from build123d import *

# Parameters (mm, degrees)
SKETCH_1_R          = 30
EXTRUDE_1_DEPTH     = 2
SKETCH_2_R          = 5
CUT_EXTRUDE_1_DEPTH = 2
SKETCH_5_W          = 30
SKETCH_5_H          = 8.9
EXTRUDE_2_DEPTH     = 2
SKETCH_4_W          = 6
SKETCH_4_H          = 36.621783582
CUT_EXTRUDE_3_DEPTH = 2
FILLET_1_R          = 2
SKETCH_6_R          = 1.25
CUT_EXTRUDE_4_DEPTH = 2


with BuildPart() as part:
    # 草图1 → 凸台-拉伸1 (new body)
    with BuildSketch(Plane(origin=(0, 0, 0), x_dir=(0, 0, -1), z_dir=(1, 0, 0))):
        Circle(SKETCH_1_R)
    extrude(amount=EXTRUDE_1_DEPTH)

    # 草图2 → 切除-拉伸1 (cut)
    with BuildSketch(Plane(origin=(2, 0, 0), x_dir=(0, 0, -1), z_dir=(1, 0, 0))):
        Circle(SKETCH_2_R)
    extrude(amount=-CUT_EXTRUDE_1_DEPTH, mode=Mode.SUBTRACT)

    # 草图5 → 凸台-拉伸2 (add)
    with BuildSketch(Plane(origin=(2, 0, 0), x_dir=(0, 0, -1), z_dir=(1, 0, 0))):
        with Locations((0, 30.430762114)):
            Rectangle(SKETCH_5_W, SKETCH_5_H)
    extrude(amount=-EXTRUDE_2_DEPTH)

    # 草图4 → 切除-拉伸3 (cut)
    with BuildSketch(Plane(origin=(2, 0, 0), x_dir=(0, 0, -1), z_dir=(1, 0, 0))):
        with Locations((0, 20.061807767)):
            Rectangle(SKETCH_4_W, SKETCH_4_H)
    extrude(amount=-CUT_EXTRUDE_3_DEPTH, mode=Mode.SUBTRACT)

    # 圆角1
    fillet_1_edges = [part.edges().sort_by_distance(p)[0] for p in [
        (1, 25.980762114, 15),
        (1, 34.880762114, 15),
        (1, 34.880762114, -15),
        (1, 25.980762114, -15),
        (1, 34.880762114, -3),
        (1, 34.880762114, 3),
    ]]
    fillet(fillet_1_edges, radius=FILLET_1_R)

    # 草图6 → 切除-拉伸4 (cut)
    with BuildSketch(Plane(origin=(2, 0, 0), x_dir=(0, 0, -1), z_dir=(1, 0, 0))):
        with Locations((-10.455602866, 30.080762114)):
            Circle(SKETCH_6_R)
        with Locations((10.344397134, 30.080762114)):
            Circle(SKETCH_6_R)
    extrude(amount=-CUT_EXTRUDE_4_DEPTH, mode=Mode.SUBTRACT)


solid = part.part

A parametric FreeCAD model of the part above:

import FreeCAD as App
import Part
import Sketcher

V = App.Vector
Q = App.Units.Quantity


def edges_at(feature, points):
    """Names of the edges that pass closest to the given points."""
    edges = feature.Shape.Edges
    near = lambda p: min(range(len(edges)), key=lambda i: edges[i].distToShape(Part.Vertex(*p))[0])
    return sorted({f"Edge{near(p) + 1}" for p in points})

doc = App.newDocument("Part")
params = doc.addObject("Spreadsheet::Sheet", "Params")
for row, (alias, value) in enumerate([
    ("sketch1_diameter", "60 mm"),
    ("pad1_length", "2 mm"),
    ("sketch2_diameter", "10 mm"),
    ("pocket1_length", "2 mm"),
    ("sketch3_height", "30 mm"),
    ("sketch3_width", "8.9 mm"),
    ("pad2_length", "2 mm"),
    ("sketch4_height", "6 mm"),
    ("pocket2_length", "2 mm"),
    ("fillet_radius", "2 mm"),
    ("sketch5_diameter", "2.5 mm"),
    ("pocket3_length", "2 mm"),
], start=1):
    params.set(f"A{row}", alias)
    params.set(f"B{row}", "=" + value)
    params.setAlias(f"B{row}", alias)

body = doc.addObject("PartDesign::Body", "Body")

sketch1 = body.newObject("Sketcher::SketchObject", "Sketch")
sketch1.AttachmentSupport = (doc.getObject("YZ_Plane"), [""])
sketch1.MapMode = "FlatFace"
sketch1.addGeometry(Part.Circle(V(0, 0, 0), V(0, 0, 1), 30), False)
sketch1.addConstraint([
    Sketcher.Constraint("Coincident", 0, 3, -1, 1),
    Sketcher.Constraint("Diameter", 0, Q("60 mm")),
])
sketch1.setExpression("Constraints[1]", "Params.sketch1_diameter")
pad1 = body.newObject("PartDesign::Pad", "Pad")
pad1.Profile = sketch1
pad1.setExpression("Length", "Params.pad1_length")

sketch2 = body.newObject("Sketcher::SketchObject", "Sketch001")
sketch2.AttachmentSupport = (doc.getObject("YZ_Plane"), [""])
sketch2.MapMode = "FlatFace"
sketch2.AttachmentOffset = App.Placement(V(0, 0, 2), App.Rotation())
sketch2.addGeometry(Part.Circle(V(0, 0, 0), V(0, 0, 1), 5), False)
sketch2.addConstraint([
    Sketcher.Constraint("Coincident", 0, 3, -1, 1),
    Sketcher.Constraint("Diameter", 0, Q("10 mm")),
])
sketch2.setExpression("Constraints[1]", "Params.sketch2_diameter")
pocket1 = body.newObject("PartDesign::Pocket", "Pocket")
pocket1.Profile = sketch2
pocket1.setExpression("Length", "Params.pocket1_length")

sketch3 = body.newObject("Sketcher::SketchObject", "Sketch002")
sketch3.AttachmentSupport = (doc.getObject("YZ_Plane"), [""])
sketch3.MapMode = "FlatFace"
sketch3.AttachmentOffset = App.Placement(V(0, 0, 2), App.Rotation())
sketch3.addGeometry([
    Part.LineSegment(V(35, 15, 0), V(26, 15, 0)),
    Part.LineSegment(V(26, 15, 0), V(26, -15, 0)),
    Part.LineSegment(V(26, -15, 0), V(35, -15, 0)),
    Part.LineSegment(V(35, -15, 0), V(35, 15, 0)),
], False)
sketch3.addConstraint([
    Sketcher.Constraint("Coincident", 0, 2, 1, 1),
    Sketcher.Constraint("Coincident", 1, 2, 2, 1),
    Sketcher.Constraint("Coincident", 2, 2, 3, 1),
    Sketcher.Constraint("Coincident", 3, 2, 0, 1),
    Sketcher.Constraint("Horizontal", 0),
    Sketcher.Constraint("Vertical", 1),
    Sketcher.Constraint("Horizontal", 2),
    Sketcher.Constraint("Vertical", 3),
    Sketcher.Constraint("DistanceY", 1, 2, 1, 1, Q("30 mm")),
    Sketcher.Constraint("DistanceX", 0, 2, 0, 1, Q("8.9 mm")),
    Sketcher.Constraint("DistanceY", -1, 1, 0, 2, Q("15 mm")),
    Sketcher.Constraint("DistanceX", -1, 1, 0, 2, Q("25.980762 mm")),
])
sketch3.setExpression("Constraints[8]", "Params.sketch3_height")
sketch3.setExpression("Constraints[9]", "Params.sketch3_width")
pad2 = body.newObject("PartDesign::Pad", "Pad001")
pad2.Profile = sketch3
pad2.setExpression("Length", "Params.pad2_length")
pad2.Reversed = True

sketch4 = body.newObject("Sketcher::SketchObject", "Sketch003")
sketch4.AttachmentSupport = (doc.getObject("YZ_Plane"), [""])
sketch4.MapMode = "FlatFace"
sketch4.AttachmentOffset = App.Placement(V(0, 0, 2), App.Rotation())
sketch4.addGeometry([
    Part.LineSegment(V(38, 3, 0), V(2, 3, 0)),
    Part.LineSegment(V(2, 3, 0), V(2, -3, 0)),
    Part.LineSegment(V(2, -3, 0), V(38, -3, 0)),
    Part.LineSegment(V(38, -3, 0), V(38, 3, 0)),
], False)
sketch4.addConstraint([
    Sketcher.Constraint("Coincident", 0, 2, 1, 1),
    Sketcher.Constraint("Coincident", 1, 2, 2, 1),
    Sketcher.Constraint("Coincident", 2, 2, 3, 1),
    Sketcher.Constraint("Coincident", 3, 2, 0, 1),
    Sketcher.Constraint("Horizontal", 0),
    Sketcher.Constraint("Vertical", 1),
    Sketcher.Constraint("Horizontal", 2),
    Sketcher.Constraint("Vertical", 3),
    Sketcher.Constraint("DistanceY", 1, 2, 1, 1, Q("6 mm")),
    Sketcher.Constraint("DistanceY", -1, 1, 0, 2, Q("3 mm")),
    Sketcher.Constraint("DistanceX", -1, 1, 2, 2, Q("38.3727 mm")),
    Sketcher.Constraint("DistanceX", 0, 2, 0, 1, Q("36.621784 mm")),
])
sketch4.setExpression("Constraints[8]", "Params.sketch4_height")
pocket2 = body.newObject("PartDesign::Pocket", "Pocket001")
pocket2.Profile = sketch4
pocket2.setExpression("Length", "Params.pocket2_length")
doc.recompute()

fillet = body.newObject("PartDesign::Fillet", "Fillet")
fillet.Base = (pocket2, edges_at(pocket2, [
    (1, 25.981, 15),
    (1, 34.881, 15),
    (1, 34.881, -15),
    (1, 25.981, -15),
    (1, 34.881, -3),
    (1, 34.881, 3),
]))
fillet.setExpression("Radius", "Params.fillet_radius")

sketch5 = body.newObject("Sketcher::SketchObject", "Sketch004")
sketch5.AttachmentSupport = (doc.getObject("YZ_Plane"), [""])
sketch5.MapMode = "FlatFace"
sketch5.AttachmentOffset = App.Placement(V(0, 0, 2), App.Rotation())
sketch5.addGeometry([
    Part.Circle(V(30.1, 10.5, 0), V(0, 0, 1), 1.2),
    Part.Circle(V(30.1, -10.3, 0), V(0, 0, 1), 1.2),
], False)
sketch5.addConstraint([
    Sketcher.Constraint("Equal", 0, 1),
    Sketcher.Constraint("Vertical", 0, 3, 1, 3),
    Sketcher.Constraint("Diameter", 0, Q("2.5 mm")),
    Sketcher.Constraint("DistanceY", 1, 3, 0, 3, Q("20.8 mm")),
    Sketcher.Constraint("DistanceX", -1, 1, 0, 3, Q("30.080762 mm")),
    Sketcher.Constraint("DistanceY", -1, 1, 0, 3, Q("10.455603 mm")),
])
sketch5.setExpression("Constraints[2]", "Params.sketch5_diameter")
pocket3 = body.newObject("PartDesign::Pocket", "Pocket002")
pocket3.Profile = sketch5
pocket3.setExpression("Length", "Params.pocket3_length")

doc.recompute()
